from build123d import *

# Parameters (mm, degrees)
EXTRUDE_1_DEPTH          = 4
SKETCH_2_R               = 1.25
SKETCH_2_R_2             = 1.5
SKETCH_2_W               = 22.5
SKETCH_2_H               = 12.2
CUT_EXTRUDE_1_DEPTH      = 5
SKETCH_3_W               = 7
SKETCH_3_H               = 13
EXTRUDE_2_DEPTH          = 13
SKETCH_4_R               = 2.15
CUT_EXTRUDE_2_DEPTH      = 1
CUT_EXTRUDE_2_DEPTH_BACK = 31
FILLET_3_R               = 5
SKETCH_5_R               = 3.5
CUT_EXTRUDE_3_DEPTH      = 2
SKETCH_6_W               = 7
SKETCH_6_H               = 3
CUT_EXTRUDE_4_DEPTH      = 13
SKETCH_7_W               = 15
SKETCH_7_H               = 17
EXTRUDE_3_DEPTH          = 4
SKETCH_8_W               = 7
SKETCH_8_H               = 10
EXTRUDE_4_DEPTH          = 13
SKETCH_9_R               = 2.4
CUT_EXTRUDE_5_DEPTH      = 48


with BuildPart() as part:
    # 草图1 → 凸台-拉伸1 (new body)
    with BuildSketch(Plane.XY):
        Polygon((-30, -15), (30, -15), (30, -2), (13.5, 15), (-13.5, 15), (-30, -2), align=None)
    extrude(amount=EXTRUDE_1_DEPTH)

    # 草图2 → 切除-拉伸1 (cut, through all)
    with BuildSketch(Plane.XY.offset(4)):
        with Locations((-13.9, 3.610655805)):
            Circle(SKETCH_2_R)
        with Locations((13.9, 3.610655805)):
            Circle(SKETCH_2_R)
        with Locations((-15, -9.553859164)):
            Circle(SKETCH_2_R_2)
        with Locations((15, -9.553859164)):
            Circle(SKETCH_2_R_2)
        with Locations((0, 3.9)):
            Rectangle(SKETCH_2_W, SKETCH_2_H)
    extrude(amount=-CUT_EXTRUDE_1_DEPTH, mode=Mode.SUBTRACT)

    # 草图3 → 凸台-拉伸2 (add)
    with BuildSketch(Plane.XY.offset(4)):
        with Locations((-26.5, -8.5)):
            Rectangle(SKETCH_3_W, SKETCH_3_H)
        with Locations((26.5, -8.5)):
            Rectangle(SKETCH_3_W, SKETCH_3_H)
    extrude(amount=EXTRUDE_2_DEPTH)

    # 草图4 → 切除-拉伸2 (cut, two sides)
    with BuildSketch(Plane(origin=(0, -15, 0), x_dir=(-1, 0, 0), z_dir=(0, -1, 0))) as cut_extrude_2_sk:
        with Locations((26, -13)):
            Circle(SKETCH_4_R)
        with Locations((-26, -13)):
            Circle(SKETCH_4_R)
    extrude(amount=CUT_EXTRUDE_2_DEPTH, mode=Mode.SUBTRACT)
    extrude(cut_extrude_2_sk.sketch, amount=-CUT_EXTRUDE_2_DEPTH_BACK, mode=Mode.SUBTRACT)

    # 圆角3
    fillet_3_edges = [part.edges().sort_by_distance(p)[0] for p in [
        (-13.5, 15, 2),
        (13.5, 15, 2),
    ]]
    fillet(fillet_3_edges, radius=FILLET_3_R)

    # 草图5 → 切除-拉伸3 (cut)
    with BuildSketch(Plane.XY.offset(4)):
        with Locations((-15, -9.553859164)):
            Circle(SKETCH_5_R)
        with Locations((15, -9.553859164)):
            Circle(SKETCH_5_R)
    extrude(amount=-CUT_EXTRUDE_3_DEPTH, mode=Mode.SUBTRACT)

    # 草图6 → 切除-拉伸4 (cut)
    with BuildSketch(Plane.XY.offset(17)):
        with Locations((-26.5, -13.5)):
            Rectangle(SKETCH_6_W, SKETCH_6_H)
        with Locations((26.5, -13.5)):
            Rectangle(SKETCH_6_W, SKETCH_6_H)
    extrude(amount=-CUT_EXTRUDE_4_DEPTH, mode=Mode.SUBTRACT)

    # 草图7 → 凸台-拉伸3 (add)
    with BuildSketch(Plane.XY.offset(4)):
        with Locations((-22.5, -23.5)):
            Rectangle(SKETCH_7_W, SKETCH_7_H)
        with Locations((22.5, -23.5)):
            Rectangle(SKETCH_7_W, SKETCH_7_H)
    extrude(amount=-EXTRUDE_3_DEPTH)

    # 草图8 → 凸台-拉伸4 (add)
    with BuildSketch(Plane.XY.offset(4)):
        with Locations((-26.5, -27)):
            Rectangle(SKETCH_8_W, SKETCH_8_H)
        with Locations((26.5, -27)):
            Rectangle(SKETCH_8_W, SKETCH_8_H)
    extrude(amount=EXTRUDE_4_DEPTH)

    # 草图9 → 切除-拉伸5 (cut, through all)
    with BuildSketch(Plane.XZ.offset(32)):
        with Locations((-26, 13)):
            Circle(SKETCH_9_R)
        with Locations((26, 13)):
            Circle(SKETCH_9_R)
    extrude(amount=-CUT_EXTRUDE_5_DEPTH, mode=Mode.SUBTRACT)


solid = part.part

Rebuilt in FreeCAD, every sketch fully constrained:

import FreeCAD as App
import Part
import Sketcher

V = App.Vector
Q = App.Units.Quantity


def edges_at(feature, points):
    """Names of the edges that pass closest to the given points."""
    edges = feature.Shape.Edges
    near = lambda p: min(range(len(edges)), key=lambda i: edges[i].distToShape(Part.Vertex(*p))[0])
    return sorted({f"Edge{near(p) + 1}" for p in points})

doc = App.newDocument("Part")
params = doc.addObject("Spreadsheet::Sheet", "Params")
for row, (alias, value) in enumerate([
    ("sketch1_width", "60 mm"),
    ("sketch1_width2", "27 mm"),
    ("sketch1_height", "13 mm"),
    ("pad1_length", "4 mm"),
    ("sketch2_diameter", "3 mm"),
    ("sketch2_diameter2", "2.5 mm"),
    ("sketch2_width", "22.5 mm"),
    ("sketch2_height", "12.2 mm"),
    ("sketch3_width", "7 mm"),
    ("sketch3_height", "13 mm"),
    ("pad2_length", "13 mm"),
    ("sketch4_diameter", "4.3 mm"),
    ("fillet_radius", "5 mm"),
    ("sketch5_diameter", "7 mm"),
    ("pocket3_length", "2 mm"),
    ("sketch6_width", "7 mm"),
    ("sketch6_height", "3 mm"),
    ("pocket4_length", "13 mm"),
    ("sketch7_width", "15 mm"),
    ("sketch7_height", "17 mm"),
    ("pad3_length", "4 mm"),
    ("sketch8_width", "7 mm"),
    ("sketch8_height", "10 mm"),
    ("pad4_length", "13 mm"),
    ("sketch9_diameter", "4.8 mm"),
], start=1):
    params.set(f"A{row}", alias)
    params.set(f"B{row}", "=" + value)
    params.setAlias(f"B{row}", alias)

body = doc.addObject("PartDesign::Body", "Body")

# Sketch on XY plane
sketch1 = doc.addObject("Sketcher::SketchObject", "Sketch")
body.addObject(sketch1)
sketch1.AttachmentSupport = (doc.XY_Plane, [""])
sketch1.MapMode = "FlatFace"
sketch1.addGeometry([
    Part.LineSegment(V(-30, -15, 0), V(30, -15, 0)),  # 0
    Part.LineSegment(V(30, -15, 0), V(30, -2, 0)),  # 1
    Part.LineSegment(V(30, -2, 0), V(13.5, 15, 0)),  # 2
    Part.LineSegment(V(13.5, 15, 0), V(-13.5, 15, 0)),  # 3
    Part.LineSegment(V(-13.5, 15, 0), V(-30, -2, 0)),  # 4
    Part.LineSegment(V(-30, -2, 0), V(-30, -15, 0)),  # 5
], False)
sketch1.addConstraint([
    Sketcher.Constraint("Coincident", 0, 2, 1, 1),
    Sketcher.Constraint("Coincident", 1, 2, 2, 1),
    Sketcher.Constraint("Coincident", 2, 2, 3, 1),
    Sketcher.Constraint("Coincident", 3, 2, 4, 1),
    Sketcher.Constraint("Coincident", 4, 2, 5, 1),
    Sketcher.Constraint("Coincident", 5, 2, 0, 1),
    Sketcher.Constraint("Horizontal", 0),
    Sketcher.Constraint("Vertical", 1),
    Sketcher.Constraint("Horizontal", 3),
    Sketcher.Constraint("Vertical", 5),
    Sketcher.Constraint("Symmetric", 1, 2, 4, 2, -2),
    Sketcher.Constraint("Equal", 2, 4),
    Sketcher.Constraint("DistanceX", 0, 1, 0, 2, Q("60 mm")),
    Sketcher.Constraint("DistanceX", 3, 2, 3, 1, Q("27 mm")),
    Sketcher.Constraint("DistanceY", 1, 1, 1, 2, Q("13 mm")),
    Sketcher.Constraint("DistanceY", 0, 2, -1, 1, Q("15 mm")),
    Sketcher.Constraint("DistanceY", -1, 1, 2, 2, Q("15 mm")),
])
sketch1.setExpression("Constraints[12]", "Params.sketch1_width")
sketch1.setExpression("Constraints[13]", "Params.sketch1_width2")
sketch1.setExpression("Constraints[14]", "Params.sketch1_height")
pad1 = doc.addObject("PartDesign::Pad", "Pad")
body.addObject(pad1)
pad1.Profile = sketch1
pad1.setExpression("Length", "Params.pad1_length")

# Sketch on XY plane
sketch2 = doc.addObject("Sketcher::SketchObject", "Sketch001")
body.addObject(sketch2)
sketch2.AttachmentSupport = (doc.XY_Plane, [""])
sketch2.MapMode = "FlatFace"
sketch2.AttachmentOffset = App.Placement(V(0, 0, 4), App.Rotation())
sketch2.addGeometry([
    Part.Circle(V(-13.9, 3.610656, 0), V(0, 0, 1), 1.25),  # 0
    Part.Circle(V(13.9, 3.610656, 0), V(0, 0, 1), 1.25),  # 1
    Part.Circle(V(-15, -9.553859, 0), V(0, 0, 1), 1.5),  # 2
    Part.Circle(V(15, -9.553859, 0), V(0, 0, 1), 1.5),  # 3
    Part.LineSegment(V(-11.25, 10, 0), V(-11.25, -2.2, 0)),  # 4
    Part.LineSegment(V(-11.25, -2.2, 0), V(11.25, -2.2, 0)),  # 5
    Part.LineSegment(V(11.25, -2.2, 0), V(11.25, 10, 0)),  # 6
    Part.LineSegment(V(11.25, 10, 0), V(-11.25, 10, 0)),  # 7
], False)
sketch2.addConstraint([
    Sketcher.Constraint("Coincident", 4, 2, 5, 1),
    Sketcher.Constraint("Coincident", 5, 2, 6, 1),
    Sketcher.Constraint("Coincident", 6, 2, 7, 1),
    Sketcher.Constraint("Coincident", 7, 2, 4, 1),
    Sketcher.Constraint("Vertical", 4),
    Sketcher.Constraint("Horizontal", 5),
    Sketcher.Constraint("Vertical", 6),
    Sketcher.Constraint("Horizontal", 7),
    Sketcher.Constraint("Equal", 0, 1),
    Sketcher.Constraint("Equal", 2, 3),
    Sketcher.Constraint("Symmetric", 0, 3, 1, 3, -2),
    Sketcher.Constraint("Symmetric", 2, 3, 3, 3, -2),
    Sketcher.Constraint("Diameter", 2, Q("3 mm")),
    Sketcher.Constraint("Diameter", 0, Q("2.5 mm")),
    Sketcher.Constraint("DistanceX", 5, 1, 5, 2, Q("22.5 mm")),
    Sketcher.Constraint("DistanceY", 4, 2, 4, 1, Q("12.2 mm")),
    Sketcher.Constraint("DistanceX", 2, 3, -1, 1, Q("15 mm")),
    Sketcher.Constraint("DistanceY", -1, 1, 6, 2, Q("10 mm")),
    Sketcher.Constraint("DistanceX", 0, 3, -1, 1, Q("13.9 mm")),
    Sketcher.Constraint("DistanceX", 4, 2, -1, 1, Q("11.25 mm")),
    Sketcher.Constraint("DistanceY", 2, 3, -1, 1, Q("9.553859 mm")),
    Sketcher.Constraint("DistanceY", -1, 1, 0, 3, Q("3.610656 mm")),
])
sketch2.setExpression("Constraints[12]", "Params.sketch2_diameter")
sketch2.setExpression("Constraints[13]", "Params.sketch2_diameter2")
sketch2.setExpression("Constraints[14]", "Params.sketch2_width")
sketch2.setExpression("Constraints[15]", "Params.sketch2_height")
pocket1 = doc.addObject("PartDesign::Pocket", "Pocket")
body.addObject(pocket1)
pocket1.Profile = sketch2
pocket1.Type = "ThroughAll"

# Sketch on XY plane
sketch3 = doc.addObject("Sketcher::SketchObject", "Sketch002")
body.addObject(sketch3)
sketch3.AttachmentSupport = (doc.XY_Plane, [""])
sketch3.MapMode = "FlatFace"
sketch3.AttachmentOffset = App.Placement(V(0, 0, 4), App.Rotation())
sketch3.addGeometry([
    Part.LineSegment(V(-30, -2, 0), V(-30, -15, 0)),  # 0
    Part.LineSegment(V(-30, -15, 0), V(-23, -15, 0)),  # 1
    Part.LineSegment(V(-23, -15, 0), V(-23, -2, 0)),  # 2
    Part.LineSegment(V(-23, -2, 0), V(-30, -2, 0)),  # 3
    Part.LineSegment(V(23, -2, 0), V(23, -15, 0)),  # 4
    Part.LineSegment(V(23, -15, 0), V(30, -15, 0)),  # 5
    Part.LineSegment(V(30, -15, 0), V(30, -2, 0)),  # 6
    Part.LineSegment(V(30, -2, 0), V(23, -2, 0)),  # 7
], False)
sketch3.addConstraint([
    Sketcher.Constraint("Coincident", 0, 2, 1, 1),
    Sketcher.Constraint("Coincident", 1, 2, 2, 1),
    Sketcher.Constraint("Coincident", 2, 2, 3, 1),
    Sketcher.Constraint("Coincident", 3, 2, 0, 1),
    Sketcher.Constraint("Coincident", 4, 2, 5, 1),
    Sketcher.Constraint("Coincident", 5, 2, 6, 1),
    Sketcher.Constraint("Coincident", 6, 2, 7, 1),
    Sketcher.Constraint("Coincident", 7, 2, 4, 1),
    Sketcher.Constraint("Vertical", 0),
    Sketcher.Constraint("Horizontal", 1),
    Sketcher.Constraint("Vertical", 2),
    Sketcher.Constraint("Horizontal", 3),
    Sketcher.Constraint("Vertical", 4),
    Sketcher.Constraint("Horizontal", 5),
    Sketcher.Constraint("Vertical", 6),
    Sketcher.Constraint("Horizontal", 7),
    Sketcher.Constraint("Symmetric", 1, 2, 4, 2, -2),
    Sketcher.Constraint("Symmetric", 3, 2, 6, 2, -2),
    Sketcher.Constraint("DistanceX", 1, 1, 1, 2, Q("7 mm")),
    Sketcher.Constraint("DistanceY", 0, 2, 0, 1, Q("13 mm")),
    Sketcher.Constraint("DistanceX", 0, 2, -1, 1, Q("30 mm")),
    Sketcher.Constraint("DistanceY", 0, 2, -1, 1, Q("15 mm")),
])
sketch3.setExpression("Constraints[18]", "Params.sketch3_width")
sketch3.setExpression("Constraints[19]", "Params.sketch3_height")
pad2 = doc.addObject("PartDesign::Pad", "Pad001")
body.addObject(pad2)
pad2.Profile = sketch3
pad2.setExpression("Length", "Params.pad2_length")

# Sketch on XZ plane
sketch4 = doc.addObject("Sketcher::SketchObject", "Sketch003")
body.addObject(sketch4)
sketch4.AttachmentSupport = (doc.XZ_Plane, [""])
sketch4.MapMode = "FlatFace"
sketch4.AttachmentOffset = App.Placement(V(0, 0, 15), App.Rotation())
sketch4.addGeometry([
    Part.Circle(V(-26, 13, 0), V(0, 0, 1), 2.15),
    Part.Circle(V(26, 13, 0), V(0, 0, 1), 2.15),
], False)
sketch4.addConstraint([
    Sketcher.Constraint("Equal", 0, 1),
    Sketcher.Constraint("Symmetric", 0, 3, 1, 3, -2),
    Sketcher.Constraint("Diameter", 0, Q("4.3 mm")),
    Sketcher.Constraint("DistanceX", 0, 3, -1, 1, Q("26 mm")),
    Sketcher.Constraint("DistanceY", -1, 1, 0, 3, Q("13 mm")),
])
sketch4.setExpression("Constraints[2]", "Params.sketch4_diameter")
pocket2 = doc.addObject("PartDesign::Pocket", "Pocket001")
body.addObject(pocket2)
pocket2.Profile = sketch4
pocket2.Type = "ThroughAll"
pocket2.Midplane = True
doc.recompute()

fillet = doc.addObject("PartDesign::Fillet", "Fillet")
body.addObject(fillet)
fillet.Base = (pocket2, edges_at(pocket2, [(-13.5, 15, 2), (13.5, 15, 2)]))
fillet.setExpression("Radius", "Params.fillet_radius")

# Sketch on XY plane
sketch5 = doc.addObject("Sketcher::SketchObject", "Sketch004")
body.addObject(sketch5)
sketch5.AttachmentSupport = (doc.XY_Plane, [""])
sketch5.MapMode = "FlatFace"
sketch5.AttachmentOffset = App.Placement(V(0, 0, 4), App.Rotation())
sketch5.addGeometry([
    Part.Circle(V(-15, -9.553859, 0), V(0, 0, 1), 3.5),
    Part.Circle(V(15, -9.553859, 0), V(0, 0, 1), 3.5),
], False)
sketch5.addConstraint([
    Sketcher.Constraint("Equal", 0, 1),
    Sketcher.Constraint("Symmetric", 0, 3, 1, 3, -2),
    Sketcher.Constraint("Diameter", 0, Q("7 mm")),
    Sketcher.Constraint("DistanceX", 0, 3, -1, 1, Q("15 mm")),
    Sketcher.Constraint("DistanceY", 0, 3, -1, 1, Q("9.553859 mm")),
])
sketch5.setExpression("Constraints[2]", "Params.sketch5_diameter")
pocket3 = doc.addObject("PartDesign::Pocket", "Pocket002")
body.addObject(pocket3)
pocket3.Profile = sketch5
pocket3.setExpression("Length", "Params.pocket3_length")

# Sketch on XY plane
sketch6 = doc.addObject("Sketcher::SketchObject", "Sketch005")
body.addObject(sketch6)
sketch6.AttachmentSupport = (doc.XY_Plane, [""])
sketch6.MapMode = "FlatFace"
sketch6.AttachmentOffset = App.Placement(V(0, 0, 17), App.Rotation())
sketch6.addGeometry([
    Part.LineSegment(V(-30, -12, 0), V(-30, -15, 0)),  # 0
    Part.LineSegment(V(-30, -15, 0), V(-23, -15, 0)),  # 1
    Part.LineSegment(V(-23, -15, 0), V(-23, -12, 0)),  # 2
    Part.LineSegment(V(-23, -12, 0), V(-30, -12, 0)),  # 3
    Part.LineSegment(V(23, -12, 0), V(23, -15, 0)),  # 4
    Part.LineSegment(V(23, -15, 0), V(30, -15, 0)),  # 5
    Part.LineSegment(V(30, -15, 0), V(30, -12, 0)),  # 6
    Part.LineSegment(V(30, -12, 0), V(23, -12, 0)),  # 7
], False)
sketch6.addConstraint([
    Sketcher.Constraint("Coincident", 0, 2, 1, 1),
    Sketcher.Constraint("Coincident", 1, 2, 2, 1),
    Sketcher.Constraint("Coincident", 2, 2, 3, 1),
    Sketcher.Constraint("Coincident", 3, 2, 0, 1),
    Sketcher.Constraint("Coincident", 4, 2, 5, 1),
    Sketcher.Constraint("Coincident", 5, 2, 6, 1),
    Sketcher.Constraint("Coincident", 6, 2, 7, 1),
    Sketcher.Constraint("Coincident", 7, 2, 4, 1),
    Sketcher.Constraint("Vertical", 0),
    Sketcher.Constraint("Horizontal", 1),
    Sketcher.Constraint("Vertical", 2),
    Sketcher.Constraint("Horizontal", 3),
    Sketcher.Constraint("Vertical", 4),
    Sketcher.Constraint("Horizontal", 5),
    Sketcher.Constraint("Vertical", 6),
    Sketcher.Constraint("Horizontal", 7),
    Sketcher.Constraint("Symmetric", 1, 2, 4, 2, -2),
    Sketcher.Constraint("Symmetric", 3, 2, 6, 2, -2),
    Sketcher.Constraint("DistanceX", 1, 1, 1, 2, Q("7 mm")),
    Sketcher.Constraint("DistanceY", 0, 2, 0, 1, Q("3 mm")),
    Sketcher.Constraint("DistanceX", 0, 2, -1, 1, Q("30 mm")),
    Sketcher.Constraint("DistanceY", 0, 2, -1, 1, Q("15 mm")),
])
sketch6.setExpression("Constraints[18]", "Params.sketch6_width")
sketch6.setExpression("Constraints[19]", "Params.sketch6_height")
pocket4 = doc.addObject("PartDesign::Pocket", "Pocket003")
body.addObject(pocket4)
pocket4.Profile = sketch6
pocket4.setExpression("Length", "Params.pocket4_length")

# Sketch on XY plane
sketch7 = doc.addObject("Sketcher::SketchObject", "Sketch006")
body.addObject(sketch7)
sketch7.AttachmentSupport = (doc.XY_Plane, [""])
sketch7.MapMode = "FlatFace"
sketch7.AttachmentOffset = App.Placement(V(0, 0, 4), App.Rotation())
sketch7.addGeometry([
    Part.LineSegment(V(-30, -15, 0), V(-30, -32, 0)),  # 0
    Part.LineSegment(V(-30, -32, 0), V(-15, -32, 0)),  # 1
    Part.LineSegment(V(-15, -32, 0), V(-15, -15, 0)),  # 2
    Part.LineSegment(V(-15, -15, 0), V(-30, -15, 0)),  # 3
    Part.LineSegment(V(15, -15, 0), V(15, -32, 0)),  # 4
    Part.LineSegment(V(15, -32, 0), V(30, -32, 0)),  # 5
    Part.LineSegment(V(30, -32, 0), V(30, -15, 0)),  # 6
    Part.LineSegment(V(30, -15, 0), V(15, -15, 0)),  # 7
], False)
sketch7.addConstraint([
    Sketcher.Constraint("Coincident", 0, 2, 1, 1),
    Sketcher.Constraint("Coincident", 1, 2, 2, 1),
    Sketcher.Constraint("Coincident", 2, 2, 3, 1),
    Sketcher.Constraint("Coincident", 3, 2, 0, 1),
    Sketcher.Constraint("Coincident", 4, 2, 5, 1),
    Sketcher.Constraint("Coincident", 5, 2, 6, 1),
    Sketcher.Constraint("Coincident", 6, 2, 7, 1),
    Sketcher.Constraint("Coincident", 7, 2, 4, 1),
    Sketcher.Constraint("Vertical", 0),
    Sketcher.Constraint("Horizontal", 1),
    Sketcher.Constraint("Vertical", 2),
    Sketcher.Constraint("Horizontal", 3),
    Sketcher.Constraint("Vertical", 4),
    Sketcher.Constraint("Horizontal", 5),
    Sketcher.Constraint("Vertical", 6),
    Sketcher.Constraint("Horizontal", 7),
    Sketcher.Constraint("Symmetric", 1, 2, 4, 2, -2),
    Sketcher.Constraint("Symmetric", 3, 2, 6, 2, -2),
    Sketcher.Constraint("DistanceX", 1, 1, 1, 2, Q("15 mm")),
    Sketcher.Constraint("DistanceY", 0, 2, 0, 1, Q("17 mm")),
    Sketcher.Constraint("DistanceX", 0, 2, -1, 1, Q("30 mm")),
    Sketcher.Constraint("DistanceY", 0, 2, -1, 1, Q("32 mm")),
])
sketch7.setExpression("Constraints[18]", "Params.sketch7_width")
sketch7.setExpression("Constraints[19]", "Params.sketch7_height")
pad3 = doc.addObject("PartDesign::Pad", "Pad002")
body.addObject(pad3)
pad3.Profile = sketch7
pad3.setExpression("Length", "Params.pad3_length")
pad3.Reversed = True

# Sketch on XY plane
sketch8 = doc.addObject("Sketcher::SketchObject", "Sketch007")
body.addObject(sketch8)
sketch8.AttachmentSupport = (doc.XY_Plane, [""])
sketch8.MapMode = "FlatFace"
sketch8.AttachmentOffset = App.Placement(V(0, 0, 4), App.Rotation())
sketch8.addGeometry([
    Part.LineSegment(V(-30, -22, 0), V(-30, -32, 0)),  # 0
    Part.LineSegment(V(-30, -32, 0), V(-23, -32, 0)),  # 1
    Part.LineSegment(V(-23, -32, 0), V(-23, -22, 0)),  # 2
    Part.LineSegment(V(-23, -22, 0), V(-30, -22, 0)),  # 3
    Part.LineSegment(V(23, -22, 0), V(23, -32, 0)),  # 4
    Part.LineSegment(V(23, -32, 0), V(30, -32, 0)),  # 5
    Part.LineSegment(V(30, -32, 0), V(30, -22, 0)),  # 6
    Part.LineSegment(V(30, -22, 0), V(23, -22, 0)),  # 7
], False)
sketch8.addConstraint([
    Sketcher.Constraint("Coincident", 0, 2, 1, 1),
    Sketcher.Constraint("Coincident", 1, 2, 2, 1),
    Sketcher.Constraint("Coincident", 2, 2, 3, 1),
    Sketcher.Constraint("Coincident", 3, 2, 0, 1),
    Sketcher.Constraint("Coincident", 4, 2, 5, 1),
    Sketcher.Constraint("Coincident", 5, 2, 6, 1),
    Sketcher.Constraint("Coincident", 6, 2, 7, 1),
    Sketcher.Constraint("Coincident", 7, 2, 4, 1),
    Sketcher.Constraint("Vertical", 0),
    Sketcher.Constraint("Horizontal", 1),
    Sketcher.Constraint("Vertical", 2),
    Sketcher.Constraint("Horizontal", 3),
    Sketcher.Constraint("Vertical", 4),
    Sketcher.Constraint("Horizontal", 5),
    Sketcher.Constraint("Vertical", 6),
    Sketcher.Constraint("Horizontal", 7),
    Sketcher.Constraint("Symmetric", 1, 2, 4, 2, -2),
    Sketcher.Constraint("Symmetric", 3, 2, 6, 2, -2),
    Sketcher.Constraint("DistanceX", 1, 1, 1, 2, Q("7 mm")),
    Sketcher.Constraint("DistanceY", 0, 2, 0, 1, Q("10 mm")),
    Sketcher.Constraint("DistanceX", 0, 2, -1, 1, Q("30 mm")),
    Sketcher.Constraint("DistanceY", 0, 2, -1, 1, Q("32 mm")),
])
sketch8.setExpression("Constraints[18]", "Params.sketch8_width")
sketch8.setExpression("Constraints[19]", "Params.sketch8_height")
pad4 = doc.addObject("PartDesign::Pad", "Pad003")
body.addObject(pad4)
pad4.Profile = sketch8
pad4.setExpression("Length", "Params.pad4_length")

# Sketch on XZ plane
sketch9 = doc.addObject("Sketcher::SketchObject", "Sketch008")
body.addObject(sketch9)
sketch9.AttachmentSupport = (doc.XZ_Plane, [""])
sketch9.MapMode = "FlatFace"
sketch9.AttachmentOffset = App.Placement(V(0, 0, 32), App.Rotation())
sketch9.addGeometry([
    Part.Circle(V(-26, 13, 0), V(0, 0, 1), 2.4),
    Part.Circle(V(26, 13, 0), V(0, 0, 1), 2.4),
], False)
sketch9.addConstraint([
    Sketcher.Constraint("Equal", 0, 1),
    Sketcher.Constraint("Symmetric", 0, 3, 1, 3, -2),
    Sketcher.Constraint("Diameter", 0, Q("4.8 mm")),
    Sketcher.Constraint("DistanceX", 0, 3, -1, 1, Q("26 mm")),
    Sketcher.Constraint("DistanceY", -1, 1, 0, 3, Q("13 mm")),
])
sketch9.setExpression("Constraints[2]", "Params.sketch9_diameter")
pocket5 = doc.addObject("PartDesign::Pocket", "Pocket004")
body.addObject(pocket5)
pocket5.Profile = sketch9
pocket5.Type = "ThroughAll"

doc.recompute()
